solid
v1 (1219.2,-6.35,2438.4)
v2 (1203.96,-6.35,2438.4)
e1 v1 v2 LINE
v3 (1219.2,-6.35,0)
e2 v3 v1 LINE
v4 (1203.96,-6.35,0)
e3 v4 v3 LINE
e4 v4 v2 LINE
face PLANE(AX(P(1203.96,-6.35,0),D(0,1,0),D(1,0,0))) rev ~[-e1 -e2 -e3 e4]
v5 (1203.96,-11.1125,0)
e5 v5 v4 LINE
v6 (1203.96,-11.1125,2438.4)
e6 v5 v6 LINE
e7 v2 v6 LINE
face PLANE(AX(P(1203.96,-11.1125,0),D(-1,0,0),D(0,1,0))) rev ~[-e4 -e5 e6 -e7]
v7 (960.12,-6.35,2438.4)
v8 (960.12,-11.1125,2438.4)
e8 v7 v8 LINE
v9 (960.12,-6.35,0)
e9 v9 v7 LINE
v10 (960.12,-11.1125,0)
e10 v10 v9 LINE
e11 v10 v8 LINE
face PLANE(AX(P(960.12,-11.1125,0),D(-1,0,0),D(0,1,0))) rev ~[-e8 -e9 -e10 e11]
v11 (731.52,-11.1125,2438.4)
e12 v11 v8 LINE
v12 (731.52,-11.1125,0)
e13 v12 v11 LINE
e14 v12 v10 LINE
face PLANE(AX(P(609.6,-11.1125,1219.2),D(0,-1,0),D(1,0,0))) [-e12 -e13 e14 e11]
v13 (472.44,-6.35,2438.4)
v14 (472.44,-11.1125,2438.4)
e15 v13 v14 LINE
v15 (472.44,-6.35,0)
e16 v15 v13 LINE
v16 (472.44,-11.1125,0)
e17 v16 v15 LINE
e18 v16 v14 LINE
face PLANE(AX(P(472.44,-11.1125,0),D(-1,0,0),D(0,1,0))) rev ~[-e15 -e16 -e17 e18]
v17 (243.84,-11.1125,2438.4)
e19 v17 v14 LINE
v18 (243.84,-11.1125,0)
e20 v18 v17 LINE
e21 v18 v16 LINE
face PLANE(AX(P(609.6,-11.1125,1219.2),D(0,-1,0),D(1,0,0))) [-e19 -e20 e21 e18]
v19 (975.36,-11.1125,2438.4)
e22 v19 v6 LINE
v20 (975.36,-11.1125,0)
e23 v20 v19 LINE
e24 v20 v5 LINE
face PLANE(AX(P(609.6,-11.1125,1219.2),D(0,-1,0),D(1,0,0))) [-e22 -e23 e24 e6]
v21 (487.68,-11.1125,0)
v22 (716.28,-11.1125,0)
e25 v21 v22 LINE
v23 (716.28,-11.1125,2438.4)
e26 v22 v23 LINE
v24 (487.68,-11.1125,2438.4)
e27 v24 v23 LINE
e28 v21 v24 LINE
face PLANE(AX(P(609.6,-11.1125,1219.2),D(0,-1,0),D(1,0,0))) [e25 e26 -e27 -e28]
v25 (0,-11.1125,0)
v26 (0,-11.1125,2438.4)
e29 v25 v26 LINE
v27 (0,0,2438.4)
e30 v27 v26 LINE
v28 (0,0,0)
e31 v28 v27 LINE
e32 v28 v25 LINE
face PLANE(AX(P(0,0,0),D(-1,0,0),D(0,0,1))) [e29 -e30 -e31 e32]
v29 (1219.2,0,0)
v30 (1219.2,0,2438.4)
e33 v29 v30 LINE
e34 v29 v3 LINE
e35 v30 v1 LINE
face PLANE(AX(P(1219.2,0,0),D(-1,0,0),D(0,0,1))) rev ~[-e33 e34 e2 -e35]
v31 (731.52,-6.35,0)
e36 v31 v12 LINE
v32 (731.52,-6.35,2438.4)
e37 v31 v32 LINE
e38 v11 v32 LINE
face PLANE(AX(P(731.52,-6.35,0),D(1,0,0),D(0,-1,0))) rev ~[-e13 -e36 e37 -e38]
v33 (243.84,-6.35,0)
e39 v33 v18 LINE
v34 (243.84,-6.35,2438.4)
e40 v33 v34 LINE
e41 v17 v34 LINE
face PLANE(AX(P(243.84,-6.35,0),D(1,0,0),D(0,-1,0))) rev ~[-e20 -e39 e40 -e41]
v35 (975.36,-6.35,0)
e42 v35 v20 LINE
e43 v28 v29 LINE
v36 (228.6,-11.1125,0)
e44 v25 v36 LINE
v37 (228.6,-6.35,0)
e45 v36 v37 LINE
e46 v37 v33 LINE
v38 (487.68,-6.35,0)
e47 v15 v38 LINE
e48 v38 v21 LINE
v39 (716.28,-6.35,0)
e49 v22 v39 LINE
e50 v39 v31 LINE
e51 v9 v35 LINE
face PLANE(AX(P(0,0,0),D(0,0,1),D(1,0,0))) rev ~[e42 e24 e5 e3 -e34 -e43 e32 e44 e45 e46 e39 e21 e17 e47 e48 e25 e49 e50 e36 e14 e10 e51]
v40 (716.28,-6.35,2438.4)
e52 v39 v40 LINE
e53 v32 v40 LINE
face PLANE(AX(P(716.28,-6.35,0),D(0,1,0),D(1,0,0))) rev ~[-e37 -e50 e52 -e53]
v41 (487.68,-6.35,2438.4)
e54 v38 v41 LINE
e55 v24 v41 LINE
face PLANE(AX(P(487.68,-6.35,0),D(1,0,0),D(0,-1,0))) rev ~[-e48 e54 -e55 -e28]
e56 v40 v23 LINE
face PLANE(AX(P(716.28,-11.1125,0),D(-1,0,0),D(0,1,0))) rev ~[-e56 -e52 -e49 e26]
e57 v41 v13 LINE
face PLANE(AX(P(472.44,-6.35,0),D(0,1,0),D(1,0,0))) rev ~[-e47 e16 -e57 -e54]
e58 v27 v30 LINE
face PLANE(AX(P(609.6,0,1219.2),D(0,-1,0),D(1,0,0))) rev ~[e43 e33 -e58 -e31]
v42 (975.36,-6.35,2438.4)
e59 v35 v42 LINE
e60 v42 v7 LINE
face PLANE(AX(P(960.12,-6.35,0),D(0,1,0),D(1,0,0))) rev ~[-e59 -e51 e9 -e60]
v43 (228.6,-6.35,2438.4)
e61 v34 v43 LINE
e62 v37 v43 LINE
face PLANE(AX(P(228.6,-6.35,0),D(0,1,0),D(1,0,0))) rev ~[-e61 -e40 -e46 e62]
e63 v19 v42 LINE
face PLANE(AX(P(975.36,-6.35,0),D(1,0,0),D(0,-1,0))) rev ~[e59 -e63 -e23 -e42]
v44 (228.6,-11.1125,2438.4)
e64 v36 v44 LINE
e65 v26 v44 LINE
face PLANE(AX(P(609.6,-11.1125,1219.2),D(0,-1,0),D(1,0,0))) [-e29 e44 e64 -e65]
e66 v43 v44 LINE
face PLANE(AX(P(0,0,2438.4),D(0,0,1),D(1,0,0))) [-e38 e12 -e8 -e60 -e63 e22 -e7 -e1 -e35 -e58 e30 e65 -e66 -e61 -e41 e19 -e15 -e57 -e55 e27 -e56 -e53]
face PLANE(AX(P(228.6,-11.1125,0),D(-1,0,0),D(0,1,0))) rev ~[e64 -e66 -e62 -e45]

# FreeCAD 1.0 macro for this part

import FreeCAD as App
import Part
import Sketcher
from FreeCAD import Vector
Q = App.Units.Quantity


def add_polygon(sketch, points):
    """Adds a closed chain of lines whose ends are joined by coincident constraints."""
    first, n = sketch.GeometryCount, len(points)
    for a, b in zip(points, points[1:] + points[:1]):
        sketch.addGeometry(Part.LineSegment(App.Vector(*a, 0), App.Vector(*b, 0)), False)
    for i in range(n):
        sketch.addConstraint(Sketcher.Constraint("Coincident", first + i, 2, first + (i + 1) % n, 1))

doc = App.newDocument("Part")
body = doc.addObject("PartDesign::Body", "Body")

# Sketch on XZ plane
sketch1 = body.newObject("Sketcher::SketchObject", "Sketch")
sketch1.AttachmentSupport = (doc.getObject("XZ_Plane"), [""])
sketch1.MapMode = "FlatFace"
add_polygon(sketch1, [(0, 2438), (0, 0), (1219, 0), (1219, 2438)])  # lines 0-3
sketch1.addConstraint([
    Sketcher.Constraint("Vertical", 0),
    Sketcher.Constraint("Horizontal", 1),
    Sketcher.Constraint("Vertical", 2),
    Sketcher.Constraint("Horizontal", 3),
    Sketcher.Constraint("Coincident", 0, 2, -1, 1),
    Sketcher.Constraint("DistanceX", 1, 1, 1, 2, Q("48 in")),
    Sketcher.Constraint("DistanceY", 0, 2, 0, 1, Q("96 in")),
])
pad1 = body.newObject("PartDesign::Pad", "Pad")
pad1.Profile = sketch1
pad1.Length = Q("0.4375 in")

# Sketch on XY plane
sketch2 = body.newObject("Sketcher::SketchObject", "Sketch001")
sketch2.AttachmentSupport = (doc.getObject("XY_Plane"), [""])
sketch2.MapMode = "FlatFace"
add_polygon(sketch2, [(0, -32.1), (0, -11.1), (228.6, -11.1), (228.6, -6.3), (243.8, -6.3), (243.8, -11.1), (472.4, -11.1), (472.4, -6.3), (487.7, -6.3), (487.7, -11.1), (716.3, -11.1), (716.3, -6.3), (731.5, -6.3), (731.5, -11.1), (960.1, -11.1), (960.1, -6.3), (975.4, -6.3), (975.4, -11.1), (1204, -11.1), (1204, -6.3), (1219.2, -6.3), (1219.2, -25.3)])  # lines 0-21
sketch2.addConstraint([
    Sketcher.Constraint("Vertical", 0),
    Sketcher.Constraint("Horizontal", 1),
    Sketcher.Constraint("Vertical", 2),
    Sketcher.Constraint("Horizontal", 3),
    Sketcher.Constraint("Vertical", 4),
    Sketcher.Constraint("Horizontal", 5),
    Sketcher.Constraint("Vertical", 6),
    Sketcher.Constraint("Horizontal", 7),
    Sketcher.Constraint("Vertical", 8),
    Sketcher.Constraint("Horizontal", 9),
    Sketcher.Constraint("Vertical", 10),
    Sketcher.Constraint("Horizontal", 11),
    Sketcher.Constraint("Vertical", 12),
    Sketcher.Constraint("Horizontal", 13),
    Sketcher.Constraint("Vertical", 14),
    Sketcher.Constraint("Horizontal", 15),
    Sketcher.Constraint("Vertical", 16),
    Sketcher.Constraint("Horizontal", 17),
    Sketcher.Constraint("Vertical", 18),
    Sketcher.Constraint("Horizontal", 19),
    Sketcher.Constraint("Vertical", 20),
    Sketcher.Constraint("PointOnObject", 0, 2, -2),
    Sketcher.Constraint("Horizontal", 1, 2, 4, 2),
    Sketcher.Constraint("Horizontal", 3, 2, 6, 2),
    Sketcher.Constraint("Horizontal", 5, 2, 8, 2),
    Sketcher.Constraint("Horizontal", 7, 2, 10, 2),
    Sketcher.Constraint("Horizontal", 9, 2, 12, 2),
    Sketcher.Constraint("Horizontal", 11, 2, 14, 2),
    Sketcher.Constraint("Horizontal", 13, 2, 16, 2),
    Sketcher.Constraint("Horizontal", 15, 2, 18, 2),
    Sketcher.Constraint("Equal", 1, 5),
    Sketcher.Constraint("Equal", 3, 7),
    Sketcher.Constraint("Equal", 5, 9),
    Sketcher.Constraint("Equal", 7, 11),
    Sketcher.Constraint("Equal", 9, 13),
    Sketcher.Constraint("Equal", 11, 15),
    Sketcher.Constraint("Equal", 13, 17),
    Sketcher.Constraint("Equal", 15, 19),
    Sketcher.Constraint("DistanceX", 1, 1, 1, 2, Q("9 in")),
    Sketcher.Constraint("DistanceX", 3, 1, 3, 2, Q("0.6 in")),
    Sketcher.Constraint("DistanceY", 2, 1, 2, 2, Q("0.1875 in")),
    Sketcher.Constraint("DistanceY", 2, 2, -1, 1, Q("0.25 in")),
    Sketcher.Constraint("DistanceY", 0, 1, 0, 2, Q("21.015048 mm")),
    Sketcher.Constraint("DistanceY", 20, 2, 20, 1, Q("18.950512 mm")),
])
pocket1 = body.newObject("PartDesign::Pocket", "Pocket")
pocket1.Profile = sketch2
pocket1.Length = Q("100 in")
pocket1.Reversed = True

doc.recompute()
